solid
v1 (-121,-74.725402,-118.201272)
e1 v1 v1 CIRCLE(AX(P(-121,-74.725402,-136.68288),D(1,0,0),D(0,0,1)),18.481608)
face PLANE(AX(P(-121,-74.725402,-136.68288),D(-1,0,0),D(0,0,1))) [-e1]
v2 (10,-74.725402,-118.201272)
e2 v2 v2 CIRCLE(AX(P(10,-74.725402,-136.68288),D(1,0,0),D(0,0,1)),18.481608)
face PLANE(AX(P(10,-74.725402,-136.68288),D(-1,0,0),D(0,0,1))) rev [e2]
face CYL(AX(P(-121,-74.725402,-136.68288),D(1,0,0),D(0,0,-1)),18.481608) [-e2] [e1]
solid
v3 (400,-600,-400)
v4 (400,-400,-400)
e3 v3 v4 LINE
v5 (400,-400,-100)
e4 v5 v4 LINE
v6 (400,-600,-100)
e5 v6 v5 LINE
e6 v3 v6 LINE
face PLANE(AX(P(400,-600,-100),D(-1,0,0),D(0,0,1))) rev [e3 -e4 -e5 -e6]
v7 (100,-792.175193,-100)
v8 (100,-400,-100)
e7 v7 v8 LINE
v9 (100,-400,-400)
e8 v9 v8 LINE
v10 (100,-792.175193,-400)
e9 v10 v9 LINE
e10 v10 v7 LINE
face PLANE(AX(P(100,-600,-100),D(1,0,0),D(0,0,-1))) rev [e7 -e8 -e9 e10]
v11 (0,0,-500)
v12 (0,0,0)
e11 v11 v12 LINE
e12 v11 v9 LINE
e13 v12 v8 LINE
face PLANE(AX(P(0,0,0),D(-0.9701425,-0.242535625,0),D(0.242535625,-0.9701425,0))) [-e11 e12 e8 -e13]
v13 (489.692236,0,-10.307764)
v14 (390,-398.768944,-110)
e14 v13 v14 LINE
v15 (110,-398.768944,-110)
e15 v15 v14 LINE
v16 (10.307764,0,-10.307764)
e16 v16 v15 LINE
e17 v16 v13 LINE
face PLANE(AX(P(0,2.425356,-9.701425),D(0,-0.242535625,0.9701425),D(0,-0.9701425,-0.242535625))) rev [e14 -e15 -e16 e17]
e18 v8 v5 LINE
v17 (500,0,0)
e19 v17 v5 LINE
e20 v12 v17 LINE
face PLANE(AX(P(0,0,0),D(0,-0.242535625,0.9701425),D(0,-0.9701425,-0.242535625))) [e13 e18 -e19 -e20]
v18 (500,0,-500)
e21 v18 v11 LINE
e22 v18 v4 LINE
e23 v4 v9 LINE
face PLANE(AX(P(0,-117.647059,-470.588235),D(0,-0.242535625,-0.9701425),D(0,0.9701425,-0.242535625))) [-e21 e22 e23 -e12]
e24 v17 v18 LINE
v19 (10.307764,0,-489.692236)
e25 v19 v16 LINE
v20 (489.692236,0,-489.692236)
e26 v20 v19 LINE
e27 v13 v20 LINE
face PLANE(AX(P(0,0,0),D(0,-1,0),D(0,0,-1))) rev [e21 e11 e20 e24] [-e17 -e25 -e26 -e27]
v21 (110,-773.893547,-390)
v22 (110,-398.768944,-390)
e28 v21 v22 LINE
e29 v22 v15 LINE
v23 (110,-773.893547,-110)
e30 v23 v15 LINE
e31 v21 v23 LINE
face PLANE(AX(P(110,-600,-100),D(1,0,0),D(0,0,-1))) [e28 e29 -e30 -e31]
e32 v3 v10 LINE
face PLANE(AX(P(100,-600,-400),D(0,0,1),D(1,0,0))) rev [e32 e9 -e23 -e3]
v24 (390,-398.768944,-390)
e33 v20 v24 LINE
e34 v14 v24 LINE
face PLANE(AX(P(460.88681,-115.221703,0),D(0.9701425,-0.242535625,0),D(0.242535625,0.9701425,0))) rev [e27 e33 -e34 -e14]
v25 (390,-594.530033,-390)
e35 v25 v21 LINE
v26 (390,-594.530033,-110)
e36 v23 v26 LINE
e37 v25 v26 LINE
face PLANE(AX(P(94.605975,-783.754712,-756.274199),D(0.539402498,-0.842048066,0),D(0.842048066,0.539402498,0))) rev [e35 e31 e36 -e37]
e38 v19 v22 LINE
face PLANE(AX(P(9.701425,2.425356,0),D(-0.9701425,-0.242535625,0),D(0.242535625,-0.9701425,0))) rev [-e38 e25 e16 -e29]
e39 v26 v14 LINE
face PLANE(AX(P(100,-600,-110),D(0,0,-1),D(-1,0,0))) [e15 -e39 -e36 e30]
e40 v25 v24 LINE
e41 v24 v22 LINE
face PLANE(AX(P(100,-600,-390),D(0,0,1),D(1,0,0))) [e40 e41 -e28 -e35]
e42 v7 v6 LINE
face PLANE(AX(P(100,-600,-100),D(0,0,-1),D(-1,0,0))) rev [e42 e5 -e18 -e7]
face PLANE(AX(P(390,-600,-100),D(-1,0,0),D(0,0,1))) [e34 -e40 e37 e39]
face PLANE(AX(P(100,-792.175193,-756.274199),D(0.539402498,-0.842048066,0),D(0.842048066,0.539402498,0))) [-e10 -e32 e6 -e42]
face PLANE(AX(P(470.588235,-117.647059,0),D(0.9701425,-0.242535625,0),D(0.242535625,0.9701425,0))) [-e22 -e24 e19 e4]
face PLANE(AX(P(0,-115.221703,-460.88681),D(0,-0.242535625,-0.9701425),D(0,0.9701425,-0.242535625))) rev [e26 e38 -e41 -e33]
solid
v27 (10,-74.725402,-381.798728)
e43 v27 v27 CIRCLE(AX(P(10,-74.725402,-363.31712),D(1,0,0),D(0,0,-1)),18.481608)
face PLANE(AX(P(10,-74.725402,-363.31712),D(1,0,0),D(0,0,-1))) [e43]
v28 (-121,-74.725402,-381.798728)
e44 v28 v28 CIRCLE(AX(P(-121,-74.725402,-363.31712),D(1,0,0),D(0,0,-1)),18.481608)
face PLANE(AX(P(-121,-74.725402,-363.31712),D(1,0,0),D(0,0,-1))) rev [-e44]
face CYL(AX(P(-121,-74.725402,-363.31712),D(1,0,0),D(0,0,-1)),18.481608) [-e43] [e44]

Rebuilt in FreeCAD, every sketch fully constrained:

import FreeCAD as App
import Part
import Sketcher
from FreeCAD import Vector


def faces_at(feature, points):
    """Names of the faces that lie closest to the given points."""
    faces = feature.Shape.Faces
    near = lambda p: min(range(len(faces)), key=lambda i: faces[i].distToShape(Part.Vertex(*p))[0])
    return sorted({f"Face{near(p) + 1}" for p in points})

doc = App.newDocument("Part")
body = doc.addObject("PartDesign::Body", "Body")

sketch1 = doc.addObject("Sketcher::SketchObject", "Sketch")
body.addObject(sketch1)
sketch1.AttachmentSupport = (doc.XZ_Plane, [""])
sketch1.MapMode = "FlatFace"
sketch1.addGeometry(Part.LineSegment(Vector(0, 0, 0), Vector(500, 0, 0)), False)
sketch1.addGeometry(Part.LineSegment(Vector(500, 0, 0), Vector(500, -500, 0)), False)
sketch1.addGeometry(Part.LineSegment(Vector(500, -500, 0), Vector(0, -500, 0)), False)
sketch1.addGeometry(Part.LineSegment(Vector(0, -500, 0), Vector(0, 0, 0)), False)
sketch1.addConstraint(Sketcher.Constraint("Coincident", 0, 2, 1, 1))
sketch1.addConstraint(Sketcher.Constraint("Coincident", 1, 2, 2, 1))
sketch1.addConstraint(Sketcher.Constraint("Coincident", 2, 2, 3, 1))
sketch1.addConstraint(Sketcher.Constraint("Coincident", 3, 2, 0, 1))
sketch1.addConstraint(Sketcher.Constraint("Horizontal", 0))
sketch1.addConstraint(Sketcher.Constraint("Vertical", 1))
sketch1.addConstraint(Sketcher.Constraint("Horizontal", 2))
sketch1.addConstraint(Sketcher.Constraint("Vertical", 3))
sketch1.addConstraint(Sketcher.Constraint("Coincident", 3, 2, -1, 1))
sketch1.addConstraint(Sketcher.Constraint("Equal", 2, 1))
sketch1.addConstraint(Sketcher.Constraint("DistanceX", 0, 1, 0, 2, 500.0))

sketch2 = doc.addObject("Sketcher::SketchObject", "Sketch001")
body.addObject(sketch2)
sketch2.AttachmentSupport = (doc.XZ_Plane, [""])
sketch2.MapMode = "FlatFace"
sketch2.AttachmentOffset = App.Placement(Vector(0, 0, 400), App.Rotation())
sketch2.addGeometry(Part.LineSegment(Vector(400, -400, 0), Vector(100, -400, 0)), False)
sketch2.addGeometry(Part.LineSegment(Vector(100, -400, 0), Vector(100, -100, 0)), False)
sketch2.addGeometry(Part.LineSegment(Vector(100, -100, 0), Vector(400, -100, 0)), False)
sketch2.addGeometry(Part.LineSegment(Vector(400, -100, 0), Vector(400, -400, 0)), False)
sketch2.addConstraint(Sketcher.Constraint("Coincident", 0, 2, 1, 1))
sketch2.addConstraint(Sketcher.Constraint("Coincident", 1, 2, 2, 1))
sketch2.addConstraint(Sketcher.Constraint("Coincident", 2, 2, 3, 1))
sketch2.addConstraint(Sketcher.Constraint("Coincident", 3, 2, 0, 1))
sketch2.addConstraint(Sketcher.Constraint("Horizontal", 0))
sketch2.addConstraint(Sketcher.Constraint("Vertical", 1))
sketch2.addConstraint(Sketcher.Constraint("Horizontal", 2))
sketch2.addConstraint(Sketcher.Constraint("Vertical", 3))
sketch2.addConstraint(Sketcher.Constraint("Equal", 2, 1))
sketch2.addConstraint(Sketcher.Constraint("DistanceX", 0, 2, 0, 1, 300.0))
sketch2.addConstraint(Sketcher.Constraint("DistanceX", -1, 1, 0, 2, 100.0))
sketch2.addConstraint(Sketcher.Constraint("DistanceY", 0, 2, -1, 1, 400.0))

additiveloft = doc.addObject("PartDesign::AdditiveLoft", "AdditiveLoft")
body.addObject(additiveloft)
additiveloft.Profile = sketch1
additiveloft.Sections = [sketch2]

sketch3 = doc.addObject("Sketcher::SketchObject", "Sketch002")
body.addObject(sketch3)
sketch3.AttachmentSupport = (doc.XZ_Plane, [""])
sketch3.MapMode = "FlatFace"
sketch3.AttachmentOffset = App.Placement(Vector(0, 0, 400), App.Rotation())
sketch3.addGeometry(Part.LineSegment(Vector(100, -100, 0), Vector(100, -400, 0)), False)
sketch3.addGeometry(Part.LineSegment(Vector(100, -400, 0), Vector(400, -400, 0)), False)
sketch3.addGeometry(Part.LineSegment(Vector(400, -400, 0), Vector(400, -100, 0)), False)
sketch3.addGeometry(Part.LineSegment(Vector(400, -100, 0), Vector(100, -100, 0)), False)
sketch3.addConstraint(Sketcher.Constraint("Coincident", 0, 2, 1, 1))
sketch3.addConstraint(Sketcher.Constraint("Coincident", 1, 2, 2, 1))
sketch3.addConstraint(Sketcher.Constraint("Coincident", 2, 2, 3, 1))
sketch3.addConstraint(Sketcher.Constraint("Coincident", 3, 2, 0, 1))
sketch3.addConstraint(Sketcher.Constraint("Vertical", 0))
sketch3.addConstraint(Sketcher.Constraint("Horizontal", 1))
sketch3.addConstraint(Sketcher.Constraint("Vertical", 2))
sketch3.addConstraint(Sketcher.Constraint("Horizontal", 3))
sketch3.addConstraint(Sketcher.Constraint("Equal", 3, 0))
sketch3.addConstraint(Sketcher.Constraint("DistanceX", 1, 1, 1, 2, 300.0))
sketch3.addConstraint(Sketcher.Constraint("DistanceX", -1, 1, 0, 2, 100.0))
sketch3.addConstraint(Sketcher.Constraint("DistanceY", 0, 2, -1, 1, 400.0))
pad1 = doc.addObject("PartDesign::Pad", "Pad")
body.addObject(pad1)
pad1.Profile = sketch3
pad1.Length = 200

sketch4 = doc.addObject("Sketcher::SketchObject", "Sketch003")
body.addObject(sketch4)
sketch4.AttachmentSupport = (doc.XY_Plane, [""])
sketch4.MapMode = "FlatFace"
sketch4.AttachmentOffset = App.Placement(Vector(0, 0, -100), App.Rotation())
sketch4.addGeometry(Part.LineSegment(Vector(100, -600, 0), Vector(100, -792, 0)), False)
sketch4.addGeometry(Part.LineSegment(Vector(100, -792, 0), Vector(400, -600, 0)), False)
sketch4.addGeometry(Part.LineSegment(Vector(400, -600, 0), Vector(100, -600, 0)), False)
sketch4.addConstraint(Sketcher.Constraint("Coincident", 0, 2, 1, 1))
sketch4.addConstraint(Sketcher.Constraint("Coincident", 1, 2, 2, 1))
sketch4.addConstraint(Sketcher.Constraint("Coincident", 2, 2, 0, 1))
sketch4.addConstraint(Sketcher.Constraint("Vertical", 0))
sketch4.addConstraint(Sketcher.Constraint("Horizontal", 2))
sketch4.addConstraint(Sketcher.Constraint("DistanceX", 2, 2, 2, 1, 300.0))
sketch4.addConstraint(Sketcher.Constraint("DistanceX", -1, 1, 0, 2, 100.0))
sketch4.addConstraint(Sketcher.Constraint("DistanceY", 1, 2, -1, 1, 600.0))
sketch4.addConstraint(Sketcher.Constraint("Distance", 1, 356.274199))
pad2 = doc.addObject("PartDesign::Pad", "Pad001")
body.addObject(pad2)
pad2.Profile = sketch4
pad2.Length = 300
pad2.Reversed = True
doc.recompute()

thickness = doc.addObject("PartDesign::Thickness", "Thickness")
body.addObject(thickness)
thickness.Base = (pad2, faces_at(pad2, [(250, 0, -250)]))
thickness.Value = 10
thickness.Reversed = True
thickness.Join = "Intersection"
body2 = doc.addObject("PartDesign::Body", "Body001")

sketch5 = doc.addObject("Sketcher::SketchObject", "Sketch004")
body2.addObject(sketch5)
sketch5.AttachmentSupport = (doc.getObject("YZ_Plane001"), [""])
sketch5.MapMode = "FlatFace"
sketch5.addGeometry(Part.Circle(Vector(-75, -363, 0), Vector(0, 0, 1), 18), False)
sketch5.addConstraint(Sketcher.Constraint("Diameter", 0, 36.963216))
sketch5.addConstraint(Sketcher.Constraint("DistanceX", 0, 3, -1, 1, 74.725402))
sketch5.addConstraint(Sketcher.Constraint("DistanceY", 0, 3, -1, 1, 363.31712))
pad3 = doc.addObject("PartDesign::Pad", "Pad002")
body2.addObject(pad3)
pad3.Profile = sketch5
pad3.Type = "TwoLengths"
pad3.Length = 10
pad3.Length2 = 121
body3 = doc.addObject("PartDesign::Body", "Body002")

sketch6 = doc.addObject("Sketcher::SketchObject", "Sketch005")
body3.addObject(sketch6)
sketch6.AttachmentSupport = (doc.getObject("YZ_Plane002"), [""])
sketch6.MapMode = "FlatFace"
sketch6.addGeometry(Part.Circle(Vector(-75, -137, 0), Vector(0, 0, 1), 18), False)
sketch6.addConstraint(Sketcher.Constraint("Diameter", 0, 36.963216))
sketch6.addConstraint(Sketcher.Constraint("DistanceX", 0, 3, -1, 1, 74.725402))
sketch6.addConstraint(Sketcher.Constraint("DistanceY", 0, 3, -1, 1, 136.68288))
pad4 = doc.addObject("PartDesign::Pad", "Pad003")
body3.addObject(pad4)
pad4.Profile = sketch6
pad4.Type = "TwoLengths"
pad4.Length = 10
pad4.Length2 = 121

doc.recompute()
